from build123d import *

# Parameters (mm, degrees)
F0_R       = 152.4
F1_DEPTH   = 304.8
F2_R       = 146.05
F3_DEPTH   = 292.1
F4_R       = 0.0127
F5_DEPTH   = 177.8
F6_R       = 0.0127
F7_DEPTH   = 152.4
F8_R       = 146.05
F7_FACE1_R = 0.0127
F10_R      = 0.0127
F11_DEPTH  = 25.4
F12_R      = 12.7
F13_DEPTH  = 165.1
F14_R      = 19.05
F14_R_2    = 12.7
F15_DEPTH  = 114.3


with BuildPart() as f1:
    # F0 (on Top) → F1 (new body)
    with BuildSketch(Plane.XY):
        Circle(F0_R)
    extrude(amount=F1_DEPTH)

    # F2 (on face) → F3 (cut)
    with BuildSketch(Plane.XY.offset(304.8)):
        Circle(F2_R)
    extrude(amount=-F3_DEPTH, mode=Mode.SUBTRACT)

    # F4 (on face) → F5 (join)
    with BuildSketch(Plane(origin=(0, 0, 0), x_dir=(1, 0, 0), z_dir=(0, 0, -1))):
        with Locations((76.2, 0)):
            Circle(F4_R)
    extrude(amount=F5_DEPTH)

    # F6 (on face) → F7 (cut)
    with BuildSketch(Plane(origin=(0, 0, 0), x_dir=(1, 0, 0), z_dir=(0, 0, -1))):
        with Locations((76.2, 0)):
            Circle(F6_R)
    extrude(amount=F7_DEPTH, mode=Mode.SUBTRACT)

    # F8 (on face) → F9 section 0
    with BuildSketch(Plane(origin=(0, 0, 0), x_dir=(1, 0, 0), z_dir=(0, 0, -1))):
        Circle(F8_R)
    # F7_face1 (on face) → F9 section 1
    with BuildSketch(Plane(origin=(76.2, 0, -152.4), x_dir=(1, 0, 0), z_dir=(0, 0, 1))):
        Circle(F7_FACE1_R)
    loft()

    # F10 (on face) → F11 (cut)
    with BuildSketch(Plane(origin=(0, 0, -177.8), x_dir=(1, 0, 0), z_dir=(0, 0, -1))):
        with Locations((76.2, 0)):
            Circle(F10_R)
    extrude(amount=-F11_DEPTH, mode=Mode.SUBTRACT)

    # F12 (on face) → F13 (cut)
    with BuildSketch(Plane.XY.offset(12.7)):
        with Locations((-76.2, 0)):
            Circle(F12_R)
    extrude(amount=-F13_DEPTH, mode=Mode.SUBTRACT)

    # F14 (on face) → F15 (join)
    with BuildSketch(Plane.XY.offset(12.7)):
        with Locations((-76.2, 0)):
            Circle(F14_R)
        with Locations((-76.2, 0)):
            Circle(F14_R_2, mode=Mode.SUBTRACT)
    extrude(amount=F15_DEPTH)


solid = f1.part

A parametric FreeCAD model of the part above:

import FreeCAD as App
import Part
import Sketcher
Q = App.Units.Quantity

doc = App.newDocument("Part")
body = doc.addObject("PartDesign::Body", "Body")
body.AllowCompound = True

sketch1 = doc.addObject("Sketcher::SketchObject", "Sketch")
body.addObject(sketch1)
sketch1.AttachmentSupport = (doc.XY_Plane, [""])
sketch1.MapMode = "FlatFace"
sketch1.addGeometry(Part.Circle(App.Vector(0, 0, 0), App.Vector(0, 0, 1), 152), False)
sketch1.addConstraint(Sketcher.Constraint("Coincident", 0, 3, -1, 1))
sketch1.addConstraint(Sketcher.Constraint("Diameter", 0, Q("12 in")))
pad1 = doc.addObject("PartDesign::Pad", "Pad")
body.addObject(pad1)
pad1.Profile = sketch1
pad1.Length = Q("12 in")

sketch2 = doc.addObject("Sketcher::SketchObject", "Sketch001")
body.addObject(sketch2)
sketch2.AttachmentSupport = (doc.XY_Plane, [""])
sketch2.MapMode = "FlatFace"
sketch2.AttachmentOffset = App.Placement(App.Vector(0, 0, 12 * 25.4), App.Rotation())
sketch2.addGeometry(Part.Circle(App.Vector(0, 0, 0), App.Vector(0, 0, 1), 146), False)
sketch2.addConstraint(Sketcher.Constraint("Coincident", 0, 3, -1, 1))
sketch2.addConstraint(Sketcher.Constraint("Diameter", 0, Q("11.5 in")))
pocket1 = doc.addObject("PartDesign::Pocket", "Pocket")
body.addObject(pocket1)
pocket1.Profile = sketch2
pocket1.Length = Q("11.5 in")

sketch3 = doc.addObject("Sketcher::SketchObject", "Sketch002")
body.addObject(sketch3)
sketch3.AttachmentSupport = (doc.XY_Plane, [""])
sketch3.MapMode = "FlatFace"
sketch3.addGeometry(Part.Circle(App.Vector(76.2, 0, 0), App.Vector(0, 0, 1), 0.013), False)
sketch3.addConstraint(Sketcher.Constraint("PointOnObject", 0, 3, -1))
sketch3.addConstraint(Sketcher.Constraint("Diameter", 0, Q("0.001 in")))
sketch3.addConstraint(Sketcher.Constraint("DistanceX", -1, 1, 0, 3, Q("3 in")))
pad2 = doc.addObject("PartDesign::Pad", "Pad001")
body.addObject(pad2)
pad2.Profile = sketch3
pad2.Length = Q("7 in")
pad2.Reversed = True

sketch4 = doc.addObject("Sketcher::SketchObject", "Sketch003")
body.addObject(sketch4)
sketch4.AttachmentSupport = (doc.XY_Plane, [""])
sketch4.MapMode = "FlatFace"
sketch4.addGeometry(Part.Circle(App.Vector(76.2, 0, 0), App.Vector(0, 0, 1), 0.013), False)
sketch4.addConstraint(Sketcher.Constraint("PointOnObject", 0, 3, -1))
sketch4.addConstraint(Sketcher.Constraint("Diameter", 0, Q("0.001 in")))
sketch4.addConstraint(Sketcher.Constraint("DistanceX", -1, 1, 0, 3, Q("3 in")))
pocket2 = doc.addObject("PartDesign::Pocket", "Pocket001")
body.addObject(pocket2)
pocket2.Profile = sketch4
pocket2.Length = Q("6 in")

sketch5 = doc.addObject("Sketcher::SketchObject", "Sketch004")
body.addObject(sketch5)
sketch5.AttachmentSupport = (doc.XY_Plane, [""])
sketch5.MapMode = "FlatFace"
sketch5.addGeometry(Part.Circle(App.Vector(0, 0, 0), App.Vector(0, 0, 1), 146), False)
sketch5.addConstraint(Sketcher.Constraint("Coincident", 0, 3, -1, 1))
sketch5.addConstraint(Sketcher.Constraint("Diameter", 0, Q("11.5 in")))

sketch6 = doc.addObject("Sketcher::SketchObject", "Sketch005")
body.addObject(sketch6)
sketch6.AttachmentSupport = (doc.XY_Plane, [""])
sketch6.MapMode = "FlatFace"
sketch6.AttachmentOffset = App.Placement(App.Vector(0, 0, -6 * 25.4), App.Rotation())
sketch6.addGeometry(Part.Circle(App.Vector(76.2, 0, 0), App.Vector(0, 0, 1), 0.013), False)
sketch6.addConstraint(Sketcher.Constraint("PointOnObject", 0, 3, -1))
sketch6.addConstraint(Sketcher.Constraint("Diameter", 0, Q("0.001 in")))
sketch6.addConstraint(Sketcher.Constraint("DistanceX", -1, 1, 0, 3, Q("3 in")))

additiveloft = doc.addObject("PartDesign::AdditiveLoft", "AdditiveLoft")
body.addObject(additiveloft)
additiveloft.Profile = sketch5
additiveloft.Sections = [sketch6]

sketch7 = doc.addObject("Sketcher::SketchObject", "Sketch006")
body.addObject(sketch7)
sketch7.AttachmentSupport = (doc.XY_Plane, [""])
sketch7.MapMode = "FlatFace"
sketch7.AttachmentOffset = App.Placement(App.Vector(0, 0, -7 * 25.4), App.Rotation())
sketch7.addGeometry(Part.Circle(App.Vector(76.2, 0, 0), App.Vector(0, 0, 1), 0.013), False)
sketch7.addConstraint(Sketcher.Constraint("PointOnObject", 0, 3, -1))
sketch7.addConstraint(Sketcher.Constraint("Diameter", 0, Q("0.001 in")))
sketch7.addConstraint(Sketcher.Constraint("DistanceX", -1, 1, 0, 3, Q("3 in")))
pocket3 = doc.addObject("PartDesign::Pocket", "Pocket002")
body.addObject(pocket3)
pocket3.Profile = sketch7
pocket3.Length = Q("1 in")
pocket3.Reversed = True

sketch8 = doc.addObject("Sketcher::SketchObject", "Sketch007")
body.addObject(sketch8)
sketch8.AttachmentSupport = (doc.XY_Plane, [""])
sketch8.MapMode = "FlatFace"
sketch8.AttachmentOffset = App.Placement(App.Vector(0, 0, 0.5 * 25.4), App.Rotation())
sketch8.addGeometry(Part.Circle(App.Vector(-76, 0, 0), App.Vector(0, 0, 1), 13), False)
sketch8.addConstraint(Sketcher.Constraint("PointOnObject", 0, 3, -1))
sketch8.addConstraint(Sketcher.Constraint("Diameter", 0, Q("1 in")))
sketch8.addConstraint(Sketcher.Constraint("DistanceX", 0, 3, -1, 1, Q("3 in")))
pocket4 = doc.addObject("PartDesign::Pocket", "Pocket003")
body.addObject(pocket4)
pocket4.Profile = sketch8
pocket4.Length = Q("6.5 in")

sketch9 = doc.addObject("Sketcher::SketchObject", "Sketch008")
body.addObject(sketch9)
sketch9.AttachmentSupport = (doc.XY_Plane, [""])
sketch9.MapMode = "FlatFace"
sketch9.AttachmentOffset = App.Placement(App.Vector(0, 0, 0.5 * 25.4), App.Rotation())
sketch9.addGeometry(Part.Circle(App.Vector(-76, 0, 0), App.Vector(0, 0, 1), 19), False)
sketch9.addGeometry(Part.Circle(App.Vector(-76, 0, 0), App.Vector(0, 0, 1), 13), False)
sketch9.addConstraint(Sketcher.Constraint("Coincident", 1, 3, 0, 3))
sketch9.addConstraint(Sketcher.Constraint("PointOnObject", 0, 3, -1))
sketch9.addConstraint(Sketcher.Constraint("Diameter", 1, Q("1 in")))
sketch9.addConstraint(Sketcher.Constraint("Diameter", 0, Q("1.5 in")))
sketch9.addConstraint(Sketcher.Constraint("DistanceX", 0, 3, -1, 1, Q("3 in")))
pad3 = doc.addObject("PartDesign::Pad", "Pad002")
body.addObject(pad3)
pad3.Profile = sketch9
pad3.Length = Q("4.5 in")

doc.recompute()
